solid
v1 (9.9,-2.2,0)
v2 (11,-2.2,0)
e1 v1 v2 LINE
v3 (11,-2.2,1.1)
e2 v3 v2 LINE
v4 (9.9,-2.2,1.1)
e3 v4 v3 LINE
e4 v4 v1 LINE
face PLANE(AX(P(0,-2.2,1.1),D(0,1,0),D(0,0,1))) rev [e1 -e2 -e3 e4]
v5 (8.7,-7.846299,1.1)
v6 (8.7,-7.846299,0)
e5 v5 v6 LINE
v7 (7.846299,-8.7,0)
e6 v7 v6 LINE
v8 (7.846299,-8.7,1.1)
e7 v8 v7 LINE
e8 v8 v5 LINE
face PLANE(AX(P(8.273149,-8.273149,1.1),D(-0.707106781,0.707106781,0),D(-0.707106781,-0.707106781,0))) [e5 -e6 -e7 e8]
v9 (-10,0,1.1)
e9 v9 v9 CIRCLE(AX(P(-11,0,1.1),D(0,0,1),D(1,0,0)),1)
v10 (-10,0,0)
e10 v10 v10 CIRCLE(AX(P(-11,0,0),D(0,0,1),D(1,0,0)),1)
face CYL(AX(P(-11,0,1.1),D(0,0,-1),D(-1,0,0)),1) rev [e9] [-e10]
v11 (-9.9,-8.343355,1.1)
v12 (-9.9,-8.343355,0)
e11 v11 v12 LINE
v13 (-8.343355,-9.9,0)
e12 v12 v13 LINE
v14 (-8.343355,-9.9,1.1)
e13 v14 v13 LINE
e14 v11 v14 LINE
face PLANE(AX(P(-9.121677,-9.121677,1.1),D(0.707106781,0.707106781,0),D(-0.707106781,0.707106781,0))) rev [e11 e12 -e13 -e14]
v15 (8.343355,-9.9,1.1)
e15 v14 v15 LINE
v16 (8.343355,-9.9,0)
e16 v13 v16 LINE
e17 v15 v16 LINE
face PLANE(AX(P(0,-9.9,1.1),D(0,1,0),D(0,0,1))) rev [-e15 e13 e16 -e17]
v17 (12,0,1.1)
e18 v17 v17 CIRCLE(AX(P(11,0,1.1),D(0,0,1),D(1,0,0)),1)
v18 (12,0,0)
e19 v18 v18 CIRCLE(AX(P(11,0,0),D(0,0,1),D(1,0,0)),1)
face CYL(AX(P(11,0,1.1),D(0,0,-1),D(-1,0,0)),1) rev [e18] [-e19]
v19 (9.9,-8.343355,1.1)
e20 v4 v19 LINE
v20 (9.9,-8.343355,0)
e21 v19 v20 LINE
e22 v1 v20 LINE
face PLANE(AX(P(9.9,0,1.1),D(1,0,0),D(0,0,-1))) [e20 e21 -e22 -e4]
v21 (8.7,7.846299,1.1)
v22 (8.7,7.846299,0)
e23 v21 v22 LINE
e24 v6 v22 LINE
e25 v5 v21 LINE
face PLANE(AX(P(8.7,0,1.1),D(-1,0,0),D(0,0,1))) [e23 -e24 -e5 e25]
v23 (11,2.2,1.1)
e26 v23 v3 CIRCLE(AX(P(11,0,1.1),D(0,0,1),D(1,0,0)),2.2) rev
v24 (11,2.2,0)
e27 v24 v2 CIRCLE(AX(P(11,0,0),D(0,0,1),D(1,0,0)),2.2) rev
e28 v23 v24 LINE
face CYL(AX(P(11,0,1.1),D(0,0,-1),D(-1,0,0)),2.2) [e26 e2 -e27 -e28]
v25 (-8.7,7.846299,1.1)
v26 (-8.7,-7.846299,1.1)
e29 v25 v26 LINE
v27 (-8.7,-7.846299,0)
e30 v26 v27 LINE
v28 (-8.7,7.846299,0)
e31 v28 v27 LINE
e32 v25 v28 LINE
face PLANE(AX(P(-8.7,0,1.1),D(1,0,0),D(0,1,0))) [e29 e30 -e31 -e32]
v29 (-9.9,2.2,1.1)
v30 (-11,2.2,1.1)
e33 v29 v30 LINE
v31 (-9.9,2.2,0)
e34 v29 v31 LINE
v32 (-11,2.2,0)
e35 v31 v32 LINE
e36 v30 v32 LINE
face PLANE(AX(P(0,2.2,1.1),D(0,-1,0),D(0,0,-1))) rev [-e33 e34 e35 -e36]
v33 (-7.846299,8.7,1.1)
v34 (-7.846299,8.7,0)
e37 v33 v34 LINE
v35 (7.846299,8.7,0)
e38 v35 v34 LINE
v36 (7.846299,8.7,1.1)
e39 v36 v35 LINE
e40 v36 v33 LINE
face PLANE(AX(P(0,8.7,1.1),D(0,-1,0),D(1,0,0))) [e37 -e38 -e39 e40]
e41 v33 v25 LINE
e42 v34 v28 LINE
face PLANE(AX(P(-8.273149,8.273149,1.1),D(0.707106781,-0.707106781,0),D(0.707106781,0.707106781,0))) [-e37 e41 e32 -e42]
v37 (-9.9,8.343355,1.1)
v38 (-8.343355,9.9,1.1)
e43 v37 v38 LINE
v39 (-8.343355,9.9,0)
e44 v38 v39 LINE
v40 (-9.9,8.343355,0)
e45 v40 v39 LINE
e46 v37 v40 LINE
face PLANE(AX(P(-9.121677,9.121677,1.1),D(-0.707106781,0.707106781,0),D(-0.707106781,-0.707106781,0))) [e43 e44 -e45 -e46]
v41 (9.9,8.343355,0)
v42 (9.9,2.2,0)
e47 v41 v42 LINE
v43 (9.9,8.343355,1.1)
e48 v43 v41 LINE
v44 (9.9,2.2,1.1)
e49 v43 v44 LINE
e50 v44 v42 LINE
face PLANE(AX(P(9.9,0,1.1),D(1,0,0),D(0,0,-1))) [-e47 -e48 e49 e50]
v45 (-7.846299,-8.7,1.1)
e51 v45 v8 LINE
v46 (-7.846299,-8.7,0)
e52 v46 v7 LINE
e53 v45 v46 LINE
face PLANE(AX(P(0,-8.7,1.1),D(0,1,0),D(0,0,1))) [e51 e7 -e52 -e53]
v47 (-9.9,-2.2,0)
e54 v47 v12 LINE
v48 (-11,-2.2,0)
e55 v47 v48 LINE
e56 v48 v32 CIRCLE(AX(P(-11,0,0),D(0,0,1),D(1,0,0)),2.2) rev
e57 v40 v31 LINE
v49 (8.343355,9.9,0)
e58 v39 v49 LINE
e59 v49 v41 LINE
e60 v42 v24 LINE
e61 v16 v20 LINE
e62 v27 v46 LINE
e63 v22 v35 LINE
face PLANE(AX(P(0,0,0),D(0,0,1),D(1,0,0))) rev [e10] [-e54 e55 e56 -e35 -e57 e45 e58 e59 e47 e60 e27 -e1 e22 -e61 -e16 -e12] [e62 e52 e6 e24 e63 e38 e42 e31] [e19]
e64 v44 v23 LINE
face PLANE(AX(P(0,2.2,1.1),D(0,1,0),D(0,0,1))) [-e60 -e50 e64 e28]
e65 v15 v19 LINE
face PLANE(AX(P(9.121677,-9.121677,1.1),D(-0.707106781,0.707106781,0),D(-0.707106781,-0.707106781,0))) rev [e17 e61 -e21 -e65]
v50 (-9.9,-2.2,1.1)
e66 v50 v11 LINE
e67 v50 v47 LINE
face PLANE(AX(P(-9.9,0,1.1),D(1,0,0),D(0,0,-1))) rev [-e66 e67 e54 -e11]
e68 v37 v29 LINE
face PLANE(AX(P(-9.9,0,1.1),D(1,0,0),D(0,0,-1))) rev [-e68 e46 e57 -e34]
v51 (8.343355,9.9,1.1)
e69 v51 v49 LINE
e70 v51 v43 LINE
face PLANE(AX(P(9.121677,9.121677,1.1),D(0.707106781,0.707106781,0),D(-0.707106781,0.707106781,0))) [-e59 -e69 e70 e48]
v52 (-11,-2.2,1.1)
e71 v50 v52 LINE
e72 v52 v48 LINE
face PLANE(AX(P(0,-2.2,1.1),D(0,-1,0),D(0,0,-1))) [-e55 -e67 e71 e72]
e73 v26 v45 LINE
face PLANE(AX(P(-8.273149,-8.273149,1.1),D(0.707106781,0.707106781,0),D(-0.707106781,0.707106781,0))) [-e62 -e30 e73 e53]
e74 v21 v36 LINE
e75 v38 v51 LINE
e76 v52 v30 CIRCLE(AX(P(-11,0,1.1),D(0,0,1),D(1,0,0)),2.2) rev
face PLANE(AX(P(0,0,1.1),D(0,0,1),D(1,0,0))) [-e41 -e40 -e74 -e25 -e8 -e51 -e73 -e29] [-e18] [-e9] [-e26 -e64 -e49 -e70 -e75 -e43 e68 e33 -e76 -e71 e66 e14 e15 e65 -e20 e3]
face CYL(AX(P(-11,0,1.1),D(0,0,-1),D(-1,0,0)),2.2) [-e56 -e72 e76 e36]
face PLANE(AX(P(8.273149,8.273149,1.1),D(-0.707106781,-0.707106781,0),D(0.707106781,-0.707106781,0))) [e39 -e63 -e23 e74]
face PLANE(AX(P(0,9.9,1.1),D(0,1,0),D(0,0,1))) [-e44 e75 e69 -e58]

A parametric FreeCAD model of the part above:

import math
import FreeCAD as App
import Part
import Sketcher

V = App.Vector
Q = App.Units.Quantity


def add_polygon(sketch, points):
    """Adds a closed chain of lines whose ends are joined by coincident constraints."""
    first, n = sketch.GeometryCount, len(points)
    for a, b in zip(points, points[1:] + points[:1]):
        sketch.addGeometry(Part.LineSegment(App.Vector(*a, 0), App.Vector(*b, 0)), False)
    for i in range(n):
        sketch.addConstraint(Sketcher.Constraint("Coincident", first + i, 2, first + (i + 1) % n, 1))

doc = App.newDocument("Part")
params = doc.addObject("Spreadsheet::Sheet", "Params")
for row, (alias, value) in enumerate([
    ("sketch1_diameter", "2 mm"),
    ("sketch1_radius", "2.2 mm"),
    ("sketch1_width", "1.1 mm"),
    ("pad1_length", "1.1 mm"),
], start=1):
    params.set(f"A{row}", alias)
    params.set(f"B{row}", "=" + value)
    params.setAlias(f"B{row}", alias)

body = doc.addObject("PartDesign::Body", "Body")

# Sketch on XY plane
sketch1 = body.newObject("Sketcher::SketchObject", "Sketch")
sketch1.AttachmentSupport = (doc.getObject("XY_Plane"), [""])
sketch1.MapMode = "FlatFace"
sketch1.addGeometry(Part.LineSegment(V(-8.3, 9.9, 0), V(-9.9, 8.3, 0)), False)  # 0
sketch1.addGeometry(Part.LineSegment(V(-9.9, 8.3, 0), V(-9.9, 2.2, 0)), False)  # 1
sketch1.addGeometry(Part.LineSegment(V(-9.9, 2.2, 0), V(-11, 2.2, 0)), False)  # 2
sketch1.addGeometry(Part.ArcOfCircle(Part.Circle(V(-11, 0, 0), V(0, 0, 1), 2.2), math.radians(90), math.radians(270)), False)  # 3
sketch1.addGeometry(Part.LineSegment(V(-11, -2.2, 0), V(-9.9, -2.2, 0)), False)  # 4
sketch1.addGeometry(Part.LineSegment(V(-9.9, -2.2, 0), V(-9.9, -8.3, 0)), False)  # 5
sketch1.addGeometry(Part.LineSegment(V(-9.9, -8.3, 0), V(-8.3, -9.9, 0)), False)  # 6
sketch1.addGeometry(Part.LineSegment(V(-8.3, -9.9, 0), V(8.3, -9.9, 0)), False)  # 7
sketch1.addGeometry(Part.LineSegment(V(8.3, -9.9, 0), V(9.9, -8.3, 0)), False)  # 8
sketch1.addGeometry(Part.LineSegment(V(9.9, -8.3, 0), V(9.9, -2.2, 0)), False)  # 9
sketch1.addGeometry(Part.LineSegment(V(9.9, -2.2, 0), V(11, -2.2, 0)), False)  # 10
sketch1.addGeometry(Part.ArcOfCircle(Part.Circle(V(11, 0, 0), V(0, 0, 1), 2.2), math.radians(-90), math.radians(90)), False)  # 11
sketch1.addGeometry(Part.LineSegment(V(11, 2.2, 0), V(9.9, 2.2, 0)), False)  # 12
sketch1.addGeometry(Part.LineSegment(V(9.9, 2.2, 0), V(9.9, 8.3, 0)), False)  # 13
sketch1.addGeometry(Part.LineSegment(V(9.9, 8.3, 0), V(8.3, 9.9, 0)), False)  # 14
sketch1.addGeometry(Part.LineSegment(V(8.3, 9.9, 0), V(-8.3, 9.9, 0)), False)  # 15
add_polygon(sketch1, [(-7.8, -8.7), (-8.7, -7.8), (-8.7, 7.8), (-7.8, 8.7), (7.8, 8.7), (8.7, 7.8), (8.7, -7.8), (7.8, -8.7)])  # lines 16-23
sketch1.addGeometry(Part.Circle(V(-11, 0, 0), V(0, 0, 1), 1), False)  # 24
sketch1.addGeometry(Part.Circle(V(11, 0, 0), V(0, 0, 1), 1), False)  # 25
sketch1.addConstraint([
    Sketcher.Constraint("Coincident", 0, 2, 1, 1),
    Sketcher.Constraint("Coincident", 1, 2, 2, 1),
    Sketcher.Constraint("Tangent", 2, 2, 3, 1),
    Sketcher.Constraint("Tangent", 3, 2, 4, 1),
    Sketcher.Constraint("Coincident", 4, 2, 5, 1),
    Sketcher.Constraint("Coincident", 5, 2, 6, 1),
    Sketcher.Constraint("Coincident", 6, 2, 7, 1),
    Sketcher.Constraint("Coincident", 7, 2, 8, 1),
    Sketcher.Constraint("Coincident", 8, 2, 9, 1),
    Sketcher.Constraint("Coincident", 9, 2, 10, 1),
    Sketcher.Constraint("Tangent", 10, 2, 11, 1),
    Sketcher.Constraint("Tangent", 11, 2, 12, 1),
    Sketcher.Constraint("Coincident", 12, 2, 13, 1),
    Sketcher.Constraint("Coincident", 13, 2, 14, 1),
    Sketcher.Constraint("Coincident", 14, 2, 15, 1),
    Sketcher.Constraint("Coincident", 15, 2, 0, 1),
    Sketcher.Constraint("Vertical", 1),
    Sketcher.Constraint("Horizontal", 2),
    Sketcher.Constraint("Horizontal", 4),
    Sketcher.Constraint("Vertical", 5),
    Sketcher.Constraint("Horizontal", 7),
    Sketcher.Constraint("Vertical", 9),
    Sketcher.Constraint("Horizontal", 10),
    Sketcher.Constraint("Horizontal", 12),
    Sketcher.Constraint("Vertical", 13),
    Sketcher.Constraint("Horizontal", 15),
    Sketcher.Constraint("Vertical", 17),
    Sketcher.Constraint("Horizontal", 19),
    Sketcher.Constraint("Vertical", 21),
    Sketcher.Constraint("Horizontal", 23),
    Sketcher.Constraint("Coincident", 24, 3, 3, 3),
    Sketcher.Constraint("Coincident", 25, 3, 11, 3),
    Sketcher.Constraint("Equal", 3, 11),
    Sketcher.Constraint("Equal", 24, 25),
    Sketcher.Constraint("Symmetric", 3, 3, 11, 3, -1, 1),
    Sketcher.Constraint("Symmetric", 0, 2, 8, 2, -1, 1),
    Sketcher.Constraint("Symmetric", 5, 2, 13, 2, -1, 1),
    Sketcher.Constraint("Symmetric", 6, 2, 14, 2, -1, 1),
    Sketcher.Constraint("Symmetric", 16, 2, 20, 2, -1, 1),
    Sketcher.Constraint("Symmetric", 18, 2, 22, 2, -1, 1),
    Sketcher.Constraint("Symmetric", 5, 2, 8, 2, -2),
    Sketcher.Constraint("PointOnObject", 3, 3, -1),
    Sketcher.Constraint("Perpendicular", 0, 6),
    Sketcher.Constraint("Perpendicular", 6, 8),
    Sketcher.Constraint("Parallel", 14, 16),
    Sketcher.Constraint("Perpendicular", 16, 18),
    Sketcher.Constraint("Perpendicular", 18, 20),
    Sketcher.Constraint("Perpendicular", 20, 22),
    Sketcher.Constraint("Horizontal", 17, 2, 20, 2),
    Sketcher.Constraint("Vertical", 7, 2, 14, 2),
    Sketcher.Constraint("Equal", 23, 17),
    Sketcher.Constraint("Diameter", 24, Q("2 mm")),
    Sketcher.Constraint("Radius", 3, Q("2.2 mm")),
    Sketcher.Constraint("DistanceX", 2, 2, 2, 1, Q("1.1 mm")),
    Sketcher.Constraint("DistanceX", 3, 3, -1, 1, Q("11 mm")),
    Sketcher.Constraint("DistanceY", 6, 2, -1, 1, Q("9.9 mm")),
    Sketcher.Constraint("DistanceX", 16, 2, -1, 1, Q("8.7 mm")),
    Sketcher.Constraint("DistanceX", 7, 1, 7, 2, Q("16.68671 mm")),
    Sketcher.Constraint("DistanceY", 16, 2, -1, 1, Q("7.846299 mm")),
])
sketch1.setExpression("Constraints[59]", "Params.sketch1_diameter")
sketch1.setExpression("Constraints[60]", "Params.sketch1_radius")
sketch1.setExpression("Constraints[61]", "Params.sketch1_width")
pad1 = body.newObject("PartDesign::Pad", "Pad")
pad1.Profile = sketch1
pad1.setExpression("Length", "Params.pad1_length")

doc.recompute()
